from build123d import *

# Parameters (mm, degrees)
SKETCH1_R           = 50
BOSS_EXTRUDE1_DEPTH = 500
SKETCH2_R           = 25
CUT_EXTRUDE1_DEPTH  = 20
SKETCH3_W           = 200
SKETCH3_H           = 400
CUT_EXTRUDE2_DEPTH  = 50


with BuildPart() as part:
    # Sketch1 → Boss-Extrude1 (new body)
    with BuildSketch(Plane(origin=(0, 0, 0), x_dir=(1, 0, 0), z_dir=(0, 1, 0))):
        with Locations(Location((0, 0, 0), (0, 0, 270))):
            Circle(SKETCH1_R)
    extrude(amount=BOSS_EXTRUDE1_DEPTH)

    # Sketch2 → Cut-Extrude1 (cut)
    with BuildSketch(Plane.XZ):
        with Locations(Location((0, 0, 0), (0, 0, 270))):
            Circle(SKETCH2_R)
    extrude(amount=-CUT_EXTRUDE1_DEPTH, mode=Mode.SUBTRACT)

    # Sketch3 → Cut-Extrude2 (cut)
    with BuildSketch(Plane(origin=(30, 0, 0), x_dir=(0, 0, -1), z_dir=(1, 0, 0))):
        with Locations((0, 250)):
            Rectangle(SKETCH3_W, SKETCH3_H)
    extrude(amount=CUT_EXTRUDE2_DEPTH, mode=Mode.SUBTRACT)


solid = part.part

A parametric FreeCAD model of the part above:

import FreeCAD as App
import Part
import Sketcher
from FreeCAD import Vector

doc = App.newDocument("Part")
body = doc.addObject("PartDesign::Body", "Body")

sketch1 = doc.addObject("Sketcher::SketchObject", "Sketch")
body.addObject(sketch1)
sketch1.AttachmentSupport = (doc.XZ_Plane, [""])
sketch1.MapMode = "FlatFace"
sketch1.addGeometry(Part.Circle(Vector(0, 0, 0), Vector(0, 0, 1), 50), False)
sketch1.addConstraint([
    Sketcher.Constraint("Coincident", 0, 3, -1, 1),
    Sketcher.Constraint("Diameter", 0, 100.0),
])
pad1 = doc.addObject("PartDesign::Pad", "Pad")
body.addObject(pad1)
pad1.Profile = sketch1
pad1.Length = 500
pad1.Reversed = True

sketch2 = doc.addObject("Sketcher::SketchObject", "Sketch001")
body.addObject(sketch2)
sketch2.AttachmentSupport = (doc.XZ_Plane, [""])
sketch2.MapMode = "FlatFace"
sketch2.addGeometry(Part.Circle(Vector(0, 0, 0), Vector(0, 0, 1), 25), False)
sketch2.addConstraint([
    Sketcher.Constraint("Coincident", 0, 3, -1, 1),
    Sketcher.Constraint("Diameter", 0, 50.0),
])
pocket1 = doc.addObject("PartDesign::Pocket", "Pocket")
body.addObject(pocket1)
pocket1.Profile = sketch2
pocket1.Length = 20

sketch3 = doc.addObject("Sketcher::SketchObject", "Sketch002")
body.addObject(sketch3)
sketch3.AttachmentSupport = (doc.YZ_Plane, [""])
sketch3.MapMode = "FlatFace"
sketch3.AttachmentOffset = App.Placement(Vector(0, 0, 30), App.Rotation())
sketch3.addGeometry([
    Part.LineSegment(Vector(450, 100, 0), Vector(50, 100, 0)),
    Part.LineSegment(Vector(50, 100, 0), Vector(50, -100, 0)),
    Part.LineSegment(Vector(50, -100, 0), Vector(450, -100, 0)),
    Part.LineSegment(Vector(450, -100, 0), Vector(450, 100, 0)),
], False)
sketch3.addConstraint([
    Sketcher.Constraint("Coincident", 0, 2, 1, 1),
    Sketcher.Constraint("Coincident", 1, 2, 2, 1),
    Sketcher.Constraint("Coincident", 2, 2, 3, 1),
    Sketcher.Constraint("Coincident", 3, 2, 0, 1),
    Sketcher.Constraint("Horizontal", 0),
    Sketcher.Constraint("Vertical", 1),
    Sketcher.Constraint("Horizontal", 2),
    Sketcher.Constraint("Vertical", 3),
    Sketcher.Constraint("DistanceX", 0, 2, 0, 1, 400.0),
    Sketcher.Constraint("DistanceY", 1, 2, 1, 1, 200.0),
    Sketcher.Constraint("DistanceX", -1, 1, 0, 2, 50.0),
    Sketcher.Constraint("DistanceY", -1, 1, 0, 2, 100.0),
])
pocket2 = doc.addObject("PartDesign::Pocket", "Pocket001")
body.addObject(pocket2)
pocket2.Profile = sketch3
pocket2.Length = 50
pocket2.Reversed = True

doc.recompute()
